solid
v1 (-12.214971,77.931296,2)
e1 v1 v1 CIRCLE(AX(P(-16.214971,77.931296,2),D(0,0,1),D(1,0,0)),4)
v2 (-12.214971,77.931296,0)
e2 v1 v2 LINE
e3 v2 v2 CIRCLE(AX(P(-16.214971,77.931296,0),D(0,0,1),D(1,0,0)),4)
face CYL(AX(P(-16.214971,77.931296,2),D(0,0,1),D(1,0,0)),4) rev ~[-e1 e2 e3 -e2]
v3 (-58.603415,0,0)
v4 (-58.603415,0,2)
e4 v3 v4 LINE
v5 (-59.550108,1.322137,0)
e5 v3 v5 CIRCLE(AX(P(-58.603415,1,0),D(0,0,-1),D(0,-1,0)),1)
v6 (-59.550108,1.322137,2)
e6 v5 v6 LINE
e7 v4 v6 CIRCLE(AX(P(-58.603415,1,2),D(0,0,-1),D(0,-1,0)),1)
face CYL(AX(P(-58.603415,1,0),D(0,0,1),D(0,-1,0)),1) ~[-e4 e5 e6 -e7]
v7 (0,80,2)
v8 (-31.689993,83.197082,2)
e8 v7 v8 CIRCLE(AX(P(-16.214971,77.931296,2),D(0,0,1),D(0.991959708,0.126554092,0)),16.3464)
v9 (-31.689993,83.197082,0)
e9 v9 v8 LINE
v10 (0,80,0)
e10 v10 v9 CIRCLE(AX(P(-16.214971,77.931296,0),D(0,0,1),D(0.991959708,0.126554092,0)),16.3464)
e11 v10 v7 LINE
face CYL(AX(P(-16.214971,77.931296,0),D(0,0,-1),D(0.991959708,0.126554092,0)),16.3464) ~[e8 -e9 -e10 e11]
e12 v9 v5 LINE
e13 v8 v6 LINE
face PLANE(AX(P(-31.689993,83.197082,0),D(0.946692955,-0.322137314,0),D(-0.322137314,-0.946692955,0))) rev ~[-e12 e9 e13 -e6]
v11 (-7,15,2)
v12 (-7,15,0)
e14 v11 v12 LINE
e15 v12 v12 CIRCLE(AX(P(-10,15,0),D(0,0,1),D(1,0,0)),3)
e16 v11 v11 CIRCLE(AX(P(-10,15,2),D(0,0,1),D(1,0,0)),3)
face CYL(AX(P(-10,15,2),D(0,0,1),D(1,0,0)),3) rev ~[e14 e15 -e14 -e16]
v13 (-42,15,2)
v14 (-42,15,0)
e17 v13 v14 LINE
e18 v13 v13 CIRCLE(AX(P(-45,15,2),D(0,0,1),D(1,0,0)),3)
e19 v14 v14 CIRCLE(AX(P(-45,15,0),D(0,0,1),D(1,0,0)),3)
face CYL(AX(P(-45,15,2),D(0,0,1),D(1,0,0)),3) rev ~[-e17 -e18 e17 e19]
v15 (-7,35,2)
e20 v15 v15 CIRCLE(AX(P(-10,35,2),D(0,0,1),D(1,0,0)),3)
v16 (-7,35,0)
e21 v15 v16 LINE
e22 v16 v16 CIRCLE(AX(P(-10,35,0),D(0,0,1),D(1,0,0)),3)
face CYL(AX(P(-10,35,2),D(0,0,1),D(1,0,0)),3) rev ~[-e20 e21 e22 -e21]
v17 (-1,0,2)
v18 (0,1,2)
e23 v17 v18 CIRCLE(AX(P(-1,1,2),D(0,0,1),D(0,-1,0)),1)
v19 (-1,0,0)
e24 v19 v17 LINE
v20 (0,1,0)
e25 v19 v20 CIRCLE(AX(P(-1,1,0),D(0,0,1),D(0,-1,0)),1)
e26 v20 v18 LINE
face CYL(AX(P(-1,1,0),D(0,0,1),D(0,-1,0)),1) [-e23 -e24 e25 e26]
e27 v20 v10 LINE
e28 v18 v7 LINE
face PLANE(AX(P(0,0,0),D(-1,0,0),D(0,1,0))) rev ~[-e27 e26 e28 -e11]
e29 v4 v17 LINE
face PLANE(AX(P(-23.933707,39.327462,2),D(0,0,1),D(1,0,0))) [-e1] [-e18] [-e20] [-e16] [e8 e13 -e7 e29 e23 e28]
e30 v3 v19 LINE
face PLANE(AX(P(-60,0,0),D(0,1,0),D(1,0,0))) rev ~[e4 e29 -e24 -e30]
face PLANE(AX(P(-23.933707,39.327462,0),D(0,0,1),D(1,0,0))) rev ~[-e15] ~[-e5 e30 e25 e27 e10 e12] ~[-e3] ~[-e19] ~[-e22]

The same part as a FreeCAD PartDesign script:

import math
import FreeCAD as App
import Part
import Sketcher
from FreeCAD import Vector
Q = App.Units.Quantity


def edges_at(feature, points):
    """Names of the edges that pass closest to the given points."""
    edges = feature.Shape.Edges
    near = lambda p: min(range(len(edges)), key=lambda i: edges[i].distToShape(Part.Vertex(*p))[0])
    return sorted({f"Edge{near(p) + 1}" for p in points})

doc = App.newDocument("Part")
body = doc.addObject("PartDesign::Body", "Body")

sketch1 = body.newObject("Sketcher::SketchObject", "Sketch")
sketch1.AttachmentSupport = (doc.getObject("XY_Plane"), [""])
sketch1.MapMode = "FlatFace"
sketch1.addGeometry(Part.LineSegment(Vector(-60, 0, 0), Vector(0, 0, 0)), False)
sketch1.addGeometry(Part.LineSegment(Vector(0, 0, 0), Vector(0, 80, 0)), False)
sketch1.addGeometry(Part.ArcOfCircle(Part.Circle(Vector(-16, 78, 0), Vector(0, 0, 1), 16), math.radians(7), math.radians(161)), False)
sketch1.addGeometry(Part.LineSegment(Vector(-32, 83, 0), Vector(-60, 0, 0)), False)
sketch1.addConstraint(Sketcher.Constraint("Coincident", 0, 2, 1, 1))
sketch1.addConstraint(Sketcher.Constraint("Coincident", 1, 2, 2, 1))
sketch1.addConstraint(Sketcher.Constraint("Tangent", 2, 2, 3, 1))
sketch1.addConstraint(Sketcher.Constraint("Coincident", 3, 2, 0, 1))
sketch1.addConstraint(Sketcher.Constraint("Horizontal", 0))
sketch1.addConstraint(Sketcher.Constraint("Vertical", 1))
sketch1.addConstraint(Sketcher.Constraint("Coincident", 0, 2, -1, 1))
sketch1.addConstraint(Sketcher.Constraint("DistanceX", 0, 1, 0, 2, Q("60 mm")))
sketch1.addConstraint(Sketcher.Constraint("DistanceY", 1, 1, 1, 2, Q("80 mm")))
sketch1.addConstraint(Sketcher.Constraint("Radius", 2, Q("16.3464 mm")))
sketch1.addConstraint(Sketcher.Constraint("Distance", 3, Q("87.881801 mm")))
pad1 = body.newObject("PartDesign::Pad", "Pad")
pad1.Profile = sketch1
pad1.Length = 2
doc.recompute()

fillet = body.newObject("PartDesign::Fillet", "Fillet")
fillet.Base = (pad1, edges_at(pad1, [(0, 0, 1), (-60, 0, 1)]))
fillet.Radius = 1

sketch2 = body.newObject("Sketcher::SketchObject", "Sketch001")
sketch2.AttachmentSupport = (doc.getObject("XY_Plane"), [""])
sketch2.MapMode = "FlatFace"
sketch2.AttachmentOffset = App.Placement(Vector(0, 0, 2), App.Rotation())
sketch2.addGeometry(Part.Circle(Vector(-16.2, 77.9, 0), Vector(0, 0, 1), 4), False)
sketch2.addGeometry(Part.Circle(Vector(-10, 35, 0), Vector(0, 0, 1), 3), False)
sketch2.addGeometry(Part.Circle(Vector(-10, 15, 0), Vector(0, 0, 1), 3), False)
sketch2.addGeometry(Part.Circle(Vector(-45, 15, 0), Vector(0, 0, 1), 3), False)
sketch2.addConstraint(Sketcher.Constraint("Equal", 1, 2))
sketch2.addConstraint(Sketcher.Constraint("Equal", 2, 3))
sketch2.addConstraint(Sketcher.Constraint("Horizontal", 2, 3, 3, 3))
sketch2.addConstraint(Sketcher.Constraint("Vertical", 1, 3, 2, 3))
sketch2.addConstraint(Sketcher.Constraint("Diameter", 0, Q("8 mm")))
sketch2.addConstraint(Sketcher.Constraint("Diameter", 1, Q("6 mm")))
sketch2.addConstraint(Sketcher.Constraint("DistanceX", 1, 3, -1, 1, Q("10 mm")))
sketch2.addConstraint(Sketcher.Constraint("DistanceY", -1, 1, 1, 3, Q("35 mm")))
sketch2.addConstraint(Sketcher.Constraint("DistanceY", -1, 1, 2, 3, Q("15 mm")))
sketch2.addConstraint(Sketcher.Constraint("DistanceX", 3, 3, -1, 1, Q("45 mm")))
sketch2.addConstraint(Sketcher.Constraint("DistanceX", 0, 3, -1, 1, Q("16.214971 mm")))
sketch2.addConstraint(Sketcher.Constraint("DistanceY", -1, 1, 0, 3, Q("77.931296 mm")))
pocket1 = body.newObject("PartDesign::Pocket", "Pocket")
pocket1.Profile = sketch2
pocket1.Length = 2

doc.recompute()
